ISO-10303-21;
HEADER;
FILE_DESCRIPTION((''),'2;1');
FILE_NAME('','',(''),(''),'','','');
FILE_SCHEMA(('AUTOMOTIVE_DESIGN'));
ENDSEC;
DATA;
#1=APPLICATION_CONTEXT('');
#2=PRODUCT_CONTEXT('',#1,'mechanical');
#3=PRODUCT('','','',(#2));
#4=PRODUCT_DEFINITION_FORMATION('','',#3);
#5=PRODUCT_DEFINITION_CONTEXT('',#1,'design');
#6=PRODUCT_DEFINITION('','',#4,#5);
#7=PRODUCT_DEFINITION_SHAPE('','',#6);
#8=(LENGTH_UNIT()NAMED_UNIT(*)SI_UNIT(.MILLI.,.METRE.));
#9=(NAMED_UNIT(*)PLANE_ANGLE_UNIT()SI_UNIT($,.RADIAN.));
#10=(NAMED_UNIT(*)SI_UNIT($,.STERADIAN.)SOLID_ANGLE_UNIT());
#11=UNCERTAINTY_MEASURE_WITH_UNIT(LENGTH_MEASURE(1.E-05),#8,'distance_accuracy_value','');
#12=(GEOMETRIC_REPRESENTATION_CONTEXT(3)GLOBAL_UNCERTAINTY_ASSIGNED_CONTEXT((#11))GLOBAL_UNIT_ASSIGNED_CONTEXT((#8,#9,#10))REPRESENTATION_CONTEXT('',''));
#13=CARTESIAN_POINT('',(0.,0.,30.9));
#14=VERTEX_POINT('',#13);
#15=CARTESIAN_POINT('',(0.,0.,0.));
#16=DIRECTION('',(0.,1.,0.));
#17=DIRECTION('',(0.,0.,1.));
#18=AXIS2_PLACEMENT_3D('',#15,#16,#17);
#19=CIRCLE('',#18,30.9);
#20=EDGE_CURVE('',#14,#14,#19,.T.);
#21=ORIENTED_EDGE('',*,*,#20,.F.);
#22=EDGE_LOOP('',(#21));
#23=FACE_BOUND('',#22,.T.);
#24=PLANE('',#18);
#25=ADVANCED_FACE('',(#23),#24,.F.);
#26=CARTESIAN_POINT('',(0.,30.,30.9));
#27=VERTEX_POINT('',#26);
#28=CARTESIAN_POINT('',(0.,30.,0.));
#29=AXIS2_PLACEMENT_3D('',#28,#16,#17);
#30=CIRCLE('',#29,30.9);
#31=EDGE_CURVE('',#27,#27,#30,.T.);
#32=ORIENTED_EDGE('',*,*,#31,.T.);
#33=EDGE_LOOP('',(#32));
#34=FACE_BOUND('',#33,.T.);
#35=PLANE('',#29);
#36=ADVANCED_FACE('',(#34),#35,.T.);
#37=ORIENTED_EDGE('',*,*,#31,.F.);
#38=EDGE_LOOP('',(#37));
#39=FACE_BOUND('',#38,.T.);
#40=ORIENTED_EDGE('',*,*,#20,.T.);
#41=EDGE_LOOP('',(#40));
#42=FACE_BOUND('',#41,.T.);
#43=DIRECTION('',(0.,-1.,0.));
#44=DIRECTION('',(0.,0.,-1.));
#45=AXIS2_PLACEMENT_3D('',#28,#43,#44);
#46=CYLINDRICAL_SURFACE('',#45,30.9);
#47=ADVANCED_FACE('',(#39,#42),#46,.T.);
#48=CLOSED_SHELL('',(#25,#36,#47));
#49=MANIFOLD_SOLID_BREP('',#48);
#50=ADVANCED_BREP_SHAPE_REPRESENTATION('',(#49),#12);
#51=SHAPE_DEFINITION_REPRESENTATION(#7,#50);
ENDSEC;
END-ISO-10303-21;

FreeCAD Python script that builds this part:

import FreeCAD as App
import Part
import Sketcher

V = App.Vector

doc = App.newDocument("Part")
body = doc.addObject("PartDesign::Body", "Body")

# Sketch on XZ plane
sketch1 = doc.addObject("Sketcher::SketchObject", "Sketch")
body.addObject(sketch1)
sketch1.AttachmentSupport = (doc.XZ_Plane, [""])
sketch1.MapMode = "FlatFace"
sketch1.addGeometry(Part.Circle(V(0, 0, 0), V(0, 0, 1), 31), False)
sketch1.addConstraint(Sketcher.Constraint("Coincident", 0, 3, -1, 1))
sketch1.addConstraint(Sketcher.Constraint("Diameter", 0, 61.8))
pad1 = doc.addObject("PartDesign::Pad", "Pad")
body.addObject(pad1)
pad1.Profile = sketch1
pad1.Length = 30
pad1.Reversed = True

doc.recompute()
